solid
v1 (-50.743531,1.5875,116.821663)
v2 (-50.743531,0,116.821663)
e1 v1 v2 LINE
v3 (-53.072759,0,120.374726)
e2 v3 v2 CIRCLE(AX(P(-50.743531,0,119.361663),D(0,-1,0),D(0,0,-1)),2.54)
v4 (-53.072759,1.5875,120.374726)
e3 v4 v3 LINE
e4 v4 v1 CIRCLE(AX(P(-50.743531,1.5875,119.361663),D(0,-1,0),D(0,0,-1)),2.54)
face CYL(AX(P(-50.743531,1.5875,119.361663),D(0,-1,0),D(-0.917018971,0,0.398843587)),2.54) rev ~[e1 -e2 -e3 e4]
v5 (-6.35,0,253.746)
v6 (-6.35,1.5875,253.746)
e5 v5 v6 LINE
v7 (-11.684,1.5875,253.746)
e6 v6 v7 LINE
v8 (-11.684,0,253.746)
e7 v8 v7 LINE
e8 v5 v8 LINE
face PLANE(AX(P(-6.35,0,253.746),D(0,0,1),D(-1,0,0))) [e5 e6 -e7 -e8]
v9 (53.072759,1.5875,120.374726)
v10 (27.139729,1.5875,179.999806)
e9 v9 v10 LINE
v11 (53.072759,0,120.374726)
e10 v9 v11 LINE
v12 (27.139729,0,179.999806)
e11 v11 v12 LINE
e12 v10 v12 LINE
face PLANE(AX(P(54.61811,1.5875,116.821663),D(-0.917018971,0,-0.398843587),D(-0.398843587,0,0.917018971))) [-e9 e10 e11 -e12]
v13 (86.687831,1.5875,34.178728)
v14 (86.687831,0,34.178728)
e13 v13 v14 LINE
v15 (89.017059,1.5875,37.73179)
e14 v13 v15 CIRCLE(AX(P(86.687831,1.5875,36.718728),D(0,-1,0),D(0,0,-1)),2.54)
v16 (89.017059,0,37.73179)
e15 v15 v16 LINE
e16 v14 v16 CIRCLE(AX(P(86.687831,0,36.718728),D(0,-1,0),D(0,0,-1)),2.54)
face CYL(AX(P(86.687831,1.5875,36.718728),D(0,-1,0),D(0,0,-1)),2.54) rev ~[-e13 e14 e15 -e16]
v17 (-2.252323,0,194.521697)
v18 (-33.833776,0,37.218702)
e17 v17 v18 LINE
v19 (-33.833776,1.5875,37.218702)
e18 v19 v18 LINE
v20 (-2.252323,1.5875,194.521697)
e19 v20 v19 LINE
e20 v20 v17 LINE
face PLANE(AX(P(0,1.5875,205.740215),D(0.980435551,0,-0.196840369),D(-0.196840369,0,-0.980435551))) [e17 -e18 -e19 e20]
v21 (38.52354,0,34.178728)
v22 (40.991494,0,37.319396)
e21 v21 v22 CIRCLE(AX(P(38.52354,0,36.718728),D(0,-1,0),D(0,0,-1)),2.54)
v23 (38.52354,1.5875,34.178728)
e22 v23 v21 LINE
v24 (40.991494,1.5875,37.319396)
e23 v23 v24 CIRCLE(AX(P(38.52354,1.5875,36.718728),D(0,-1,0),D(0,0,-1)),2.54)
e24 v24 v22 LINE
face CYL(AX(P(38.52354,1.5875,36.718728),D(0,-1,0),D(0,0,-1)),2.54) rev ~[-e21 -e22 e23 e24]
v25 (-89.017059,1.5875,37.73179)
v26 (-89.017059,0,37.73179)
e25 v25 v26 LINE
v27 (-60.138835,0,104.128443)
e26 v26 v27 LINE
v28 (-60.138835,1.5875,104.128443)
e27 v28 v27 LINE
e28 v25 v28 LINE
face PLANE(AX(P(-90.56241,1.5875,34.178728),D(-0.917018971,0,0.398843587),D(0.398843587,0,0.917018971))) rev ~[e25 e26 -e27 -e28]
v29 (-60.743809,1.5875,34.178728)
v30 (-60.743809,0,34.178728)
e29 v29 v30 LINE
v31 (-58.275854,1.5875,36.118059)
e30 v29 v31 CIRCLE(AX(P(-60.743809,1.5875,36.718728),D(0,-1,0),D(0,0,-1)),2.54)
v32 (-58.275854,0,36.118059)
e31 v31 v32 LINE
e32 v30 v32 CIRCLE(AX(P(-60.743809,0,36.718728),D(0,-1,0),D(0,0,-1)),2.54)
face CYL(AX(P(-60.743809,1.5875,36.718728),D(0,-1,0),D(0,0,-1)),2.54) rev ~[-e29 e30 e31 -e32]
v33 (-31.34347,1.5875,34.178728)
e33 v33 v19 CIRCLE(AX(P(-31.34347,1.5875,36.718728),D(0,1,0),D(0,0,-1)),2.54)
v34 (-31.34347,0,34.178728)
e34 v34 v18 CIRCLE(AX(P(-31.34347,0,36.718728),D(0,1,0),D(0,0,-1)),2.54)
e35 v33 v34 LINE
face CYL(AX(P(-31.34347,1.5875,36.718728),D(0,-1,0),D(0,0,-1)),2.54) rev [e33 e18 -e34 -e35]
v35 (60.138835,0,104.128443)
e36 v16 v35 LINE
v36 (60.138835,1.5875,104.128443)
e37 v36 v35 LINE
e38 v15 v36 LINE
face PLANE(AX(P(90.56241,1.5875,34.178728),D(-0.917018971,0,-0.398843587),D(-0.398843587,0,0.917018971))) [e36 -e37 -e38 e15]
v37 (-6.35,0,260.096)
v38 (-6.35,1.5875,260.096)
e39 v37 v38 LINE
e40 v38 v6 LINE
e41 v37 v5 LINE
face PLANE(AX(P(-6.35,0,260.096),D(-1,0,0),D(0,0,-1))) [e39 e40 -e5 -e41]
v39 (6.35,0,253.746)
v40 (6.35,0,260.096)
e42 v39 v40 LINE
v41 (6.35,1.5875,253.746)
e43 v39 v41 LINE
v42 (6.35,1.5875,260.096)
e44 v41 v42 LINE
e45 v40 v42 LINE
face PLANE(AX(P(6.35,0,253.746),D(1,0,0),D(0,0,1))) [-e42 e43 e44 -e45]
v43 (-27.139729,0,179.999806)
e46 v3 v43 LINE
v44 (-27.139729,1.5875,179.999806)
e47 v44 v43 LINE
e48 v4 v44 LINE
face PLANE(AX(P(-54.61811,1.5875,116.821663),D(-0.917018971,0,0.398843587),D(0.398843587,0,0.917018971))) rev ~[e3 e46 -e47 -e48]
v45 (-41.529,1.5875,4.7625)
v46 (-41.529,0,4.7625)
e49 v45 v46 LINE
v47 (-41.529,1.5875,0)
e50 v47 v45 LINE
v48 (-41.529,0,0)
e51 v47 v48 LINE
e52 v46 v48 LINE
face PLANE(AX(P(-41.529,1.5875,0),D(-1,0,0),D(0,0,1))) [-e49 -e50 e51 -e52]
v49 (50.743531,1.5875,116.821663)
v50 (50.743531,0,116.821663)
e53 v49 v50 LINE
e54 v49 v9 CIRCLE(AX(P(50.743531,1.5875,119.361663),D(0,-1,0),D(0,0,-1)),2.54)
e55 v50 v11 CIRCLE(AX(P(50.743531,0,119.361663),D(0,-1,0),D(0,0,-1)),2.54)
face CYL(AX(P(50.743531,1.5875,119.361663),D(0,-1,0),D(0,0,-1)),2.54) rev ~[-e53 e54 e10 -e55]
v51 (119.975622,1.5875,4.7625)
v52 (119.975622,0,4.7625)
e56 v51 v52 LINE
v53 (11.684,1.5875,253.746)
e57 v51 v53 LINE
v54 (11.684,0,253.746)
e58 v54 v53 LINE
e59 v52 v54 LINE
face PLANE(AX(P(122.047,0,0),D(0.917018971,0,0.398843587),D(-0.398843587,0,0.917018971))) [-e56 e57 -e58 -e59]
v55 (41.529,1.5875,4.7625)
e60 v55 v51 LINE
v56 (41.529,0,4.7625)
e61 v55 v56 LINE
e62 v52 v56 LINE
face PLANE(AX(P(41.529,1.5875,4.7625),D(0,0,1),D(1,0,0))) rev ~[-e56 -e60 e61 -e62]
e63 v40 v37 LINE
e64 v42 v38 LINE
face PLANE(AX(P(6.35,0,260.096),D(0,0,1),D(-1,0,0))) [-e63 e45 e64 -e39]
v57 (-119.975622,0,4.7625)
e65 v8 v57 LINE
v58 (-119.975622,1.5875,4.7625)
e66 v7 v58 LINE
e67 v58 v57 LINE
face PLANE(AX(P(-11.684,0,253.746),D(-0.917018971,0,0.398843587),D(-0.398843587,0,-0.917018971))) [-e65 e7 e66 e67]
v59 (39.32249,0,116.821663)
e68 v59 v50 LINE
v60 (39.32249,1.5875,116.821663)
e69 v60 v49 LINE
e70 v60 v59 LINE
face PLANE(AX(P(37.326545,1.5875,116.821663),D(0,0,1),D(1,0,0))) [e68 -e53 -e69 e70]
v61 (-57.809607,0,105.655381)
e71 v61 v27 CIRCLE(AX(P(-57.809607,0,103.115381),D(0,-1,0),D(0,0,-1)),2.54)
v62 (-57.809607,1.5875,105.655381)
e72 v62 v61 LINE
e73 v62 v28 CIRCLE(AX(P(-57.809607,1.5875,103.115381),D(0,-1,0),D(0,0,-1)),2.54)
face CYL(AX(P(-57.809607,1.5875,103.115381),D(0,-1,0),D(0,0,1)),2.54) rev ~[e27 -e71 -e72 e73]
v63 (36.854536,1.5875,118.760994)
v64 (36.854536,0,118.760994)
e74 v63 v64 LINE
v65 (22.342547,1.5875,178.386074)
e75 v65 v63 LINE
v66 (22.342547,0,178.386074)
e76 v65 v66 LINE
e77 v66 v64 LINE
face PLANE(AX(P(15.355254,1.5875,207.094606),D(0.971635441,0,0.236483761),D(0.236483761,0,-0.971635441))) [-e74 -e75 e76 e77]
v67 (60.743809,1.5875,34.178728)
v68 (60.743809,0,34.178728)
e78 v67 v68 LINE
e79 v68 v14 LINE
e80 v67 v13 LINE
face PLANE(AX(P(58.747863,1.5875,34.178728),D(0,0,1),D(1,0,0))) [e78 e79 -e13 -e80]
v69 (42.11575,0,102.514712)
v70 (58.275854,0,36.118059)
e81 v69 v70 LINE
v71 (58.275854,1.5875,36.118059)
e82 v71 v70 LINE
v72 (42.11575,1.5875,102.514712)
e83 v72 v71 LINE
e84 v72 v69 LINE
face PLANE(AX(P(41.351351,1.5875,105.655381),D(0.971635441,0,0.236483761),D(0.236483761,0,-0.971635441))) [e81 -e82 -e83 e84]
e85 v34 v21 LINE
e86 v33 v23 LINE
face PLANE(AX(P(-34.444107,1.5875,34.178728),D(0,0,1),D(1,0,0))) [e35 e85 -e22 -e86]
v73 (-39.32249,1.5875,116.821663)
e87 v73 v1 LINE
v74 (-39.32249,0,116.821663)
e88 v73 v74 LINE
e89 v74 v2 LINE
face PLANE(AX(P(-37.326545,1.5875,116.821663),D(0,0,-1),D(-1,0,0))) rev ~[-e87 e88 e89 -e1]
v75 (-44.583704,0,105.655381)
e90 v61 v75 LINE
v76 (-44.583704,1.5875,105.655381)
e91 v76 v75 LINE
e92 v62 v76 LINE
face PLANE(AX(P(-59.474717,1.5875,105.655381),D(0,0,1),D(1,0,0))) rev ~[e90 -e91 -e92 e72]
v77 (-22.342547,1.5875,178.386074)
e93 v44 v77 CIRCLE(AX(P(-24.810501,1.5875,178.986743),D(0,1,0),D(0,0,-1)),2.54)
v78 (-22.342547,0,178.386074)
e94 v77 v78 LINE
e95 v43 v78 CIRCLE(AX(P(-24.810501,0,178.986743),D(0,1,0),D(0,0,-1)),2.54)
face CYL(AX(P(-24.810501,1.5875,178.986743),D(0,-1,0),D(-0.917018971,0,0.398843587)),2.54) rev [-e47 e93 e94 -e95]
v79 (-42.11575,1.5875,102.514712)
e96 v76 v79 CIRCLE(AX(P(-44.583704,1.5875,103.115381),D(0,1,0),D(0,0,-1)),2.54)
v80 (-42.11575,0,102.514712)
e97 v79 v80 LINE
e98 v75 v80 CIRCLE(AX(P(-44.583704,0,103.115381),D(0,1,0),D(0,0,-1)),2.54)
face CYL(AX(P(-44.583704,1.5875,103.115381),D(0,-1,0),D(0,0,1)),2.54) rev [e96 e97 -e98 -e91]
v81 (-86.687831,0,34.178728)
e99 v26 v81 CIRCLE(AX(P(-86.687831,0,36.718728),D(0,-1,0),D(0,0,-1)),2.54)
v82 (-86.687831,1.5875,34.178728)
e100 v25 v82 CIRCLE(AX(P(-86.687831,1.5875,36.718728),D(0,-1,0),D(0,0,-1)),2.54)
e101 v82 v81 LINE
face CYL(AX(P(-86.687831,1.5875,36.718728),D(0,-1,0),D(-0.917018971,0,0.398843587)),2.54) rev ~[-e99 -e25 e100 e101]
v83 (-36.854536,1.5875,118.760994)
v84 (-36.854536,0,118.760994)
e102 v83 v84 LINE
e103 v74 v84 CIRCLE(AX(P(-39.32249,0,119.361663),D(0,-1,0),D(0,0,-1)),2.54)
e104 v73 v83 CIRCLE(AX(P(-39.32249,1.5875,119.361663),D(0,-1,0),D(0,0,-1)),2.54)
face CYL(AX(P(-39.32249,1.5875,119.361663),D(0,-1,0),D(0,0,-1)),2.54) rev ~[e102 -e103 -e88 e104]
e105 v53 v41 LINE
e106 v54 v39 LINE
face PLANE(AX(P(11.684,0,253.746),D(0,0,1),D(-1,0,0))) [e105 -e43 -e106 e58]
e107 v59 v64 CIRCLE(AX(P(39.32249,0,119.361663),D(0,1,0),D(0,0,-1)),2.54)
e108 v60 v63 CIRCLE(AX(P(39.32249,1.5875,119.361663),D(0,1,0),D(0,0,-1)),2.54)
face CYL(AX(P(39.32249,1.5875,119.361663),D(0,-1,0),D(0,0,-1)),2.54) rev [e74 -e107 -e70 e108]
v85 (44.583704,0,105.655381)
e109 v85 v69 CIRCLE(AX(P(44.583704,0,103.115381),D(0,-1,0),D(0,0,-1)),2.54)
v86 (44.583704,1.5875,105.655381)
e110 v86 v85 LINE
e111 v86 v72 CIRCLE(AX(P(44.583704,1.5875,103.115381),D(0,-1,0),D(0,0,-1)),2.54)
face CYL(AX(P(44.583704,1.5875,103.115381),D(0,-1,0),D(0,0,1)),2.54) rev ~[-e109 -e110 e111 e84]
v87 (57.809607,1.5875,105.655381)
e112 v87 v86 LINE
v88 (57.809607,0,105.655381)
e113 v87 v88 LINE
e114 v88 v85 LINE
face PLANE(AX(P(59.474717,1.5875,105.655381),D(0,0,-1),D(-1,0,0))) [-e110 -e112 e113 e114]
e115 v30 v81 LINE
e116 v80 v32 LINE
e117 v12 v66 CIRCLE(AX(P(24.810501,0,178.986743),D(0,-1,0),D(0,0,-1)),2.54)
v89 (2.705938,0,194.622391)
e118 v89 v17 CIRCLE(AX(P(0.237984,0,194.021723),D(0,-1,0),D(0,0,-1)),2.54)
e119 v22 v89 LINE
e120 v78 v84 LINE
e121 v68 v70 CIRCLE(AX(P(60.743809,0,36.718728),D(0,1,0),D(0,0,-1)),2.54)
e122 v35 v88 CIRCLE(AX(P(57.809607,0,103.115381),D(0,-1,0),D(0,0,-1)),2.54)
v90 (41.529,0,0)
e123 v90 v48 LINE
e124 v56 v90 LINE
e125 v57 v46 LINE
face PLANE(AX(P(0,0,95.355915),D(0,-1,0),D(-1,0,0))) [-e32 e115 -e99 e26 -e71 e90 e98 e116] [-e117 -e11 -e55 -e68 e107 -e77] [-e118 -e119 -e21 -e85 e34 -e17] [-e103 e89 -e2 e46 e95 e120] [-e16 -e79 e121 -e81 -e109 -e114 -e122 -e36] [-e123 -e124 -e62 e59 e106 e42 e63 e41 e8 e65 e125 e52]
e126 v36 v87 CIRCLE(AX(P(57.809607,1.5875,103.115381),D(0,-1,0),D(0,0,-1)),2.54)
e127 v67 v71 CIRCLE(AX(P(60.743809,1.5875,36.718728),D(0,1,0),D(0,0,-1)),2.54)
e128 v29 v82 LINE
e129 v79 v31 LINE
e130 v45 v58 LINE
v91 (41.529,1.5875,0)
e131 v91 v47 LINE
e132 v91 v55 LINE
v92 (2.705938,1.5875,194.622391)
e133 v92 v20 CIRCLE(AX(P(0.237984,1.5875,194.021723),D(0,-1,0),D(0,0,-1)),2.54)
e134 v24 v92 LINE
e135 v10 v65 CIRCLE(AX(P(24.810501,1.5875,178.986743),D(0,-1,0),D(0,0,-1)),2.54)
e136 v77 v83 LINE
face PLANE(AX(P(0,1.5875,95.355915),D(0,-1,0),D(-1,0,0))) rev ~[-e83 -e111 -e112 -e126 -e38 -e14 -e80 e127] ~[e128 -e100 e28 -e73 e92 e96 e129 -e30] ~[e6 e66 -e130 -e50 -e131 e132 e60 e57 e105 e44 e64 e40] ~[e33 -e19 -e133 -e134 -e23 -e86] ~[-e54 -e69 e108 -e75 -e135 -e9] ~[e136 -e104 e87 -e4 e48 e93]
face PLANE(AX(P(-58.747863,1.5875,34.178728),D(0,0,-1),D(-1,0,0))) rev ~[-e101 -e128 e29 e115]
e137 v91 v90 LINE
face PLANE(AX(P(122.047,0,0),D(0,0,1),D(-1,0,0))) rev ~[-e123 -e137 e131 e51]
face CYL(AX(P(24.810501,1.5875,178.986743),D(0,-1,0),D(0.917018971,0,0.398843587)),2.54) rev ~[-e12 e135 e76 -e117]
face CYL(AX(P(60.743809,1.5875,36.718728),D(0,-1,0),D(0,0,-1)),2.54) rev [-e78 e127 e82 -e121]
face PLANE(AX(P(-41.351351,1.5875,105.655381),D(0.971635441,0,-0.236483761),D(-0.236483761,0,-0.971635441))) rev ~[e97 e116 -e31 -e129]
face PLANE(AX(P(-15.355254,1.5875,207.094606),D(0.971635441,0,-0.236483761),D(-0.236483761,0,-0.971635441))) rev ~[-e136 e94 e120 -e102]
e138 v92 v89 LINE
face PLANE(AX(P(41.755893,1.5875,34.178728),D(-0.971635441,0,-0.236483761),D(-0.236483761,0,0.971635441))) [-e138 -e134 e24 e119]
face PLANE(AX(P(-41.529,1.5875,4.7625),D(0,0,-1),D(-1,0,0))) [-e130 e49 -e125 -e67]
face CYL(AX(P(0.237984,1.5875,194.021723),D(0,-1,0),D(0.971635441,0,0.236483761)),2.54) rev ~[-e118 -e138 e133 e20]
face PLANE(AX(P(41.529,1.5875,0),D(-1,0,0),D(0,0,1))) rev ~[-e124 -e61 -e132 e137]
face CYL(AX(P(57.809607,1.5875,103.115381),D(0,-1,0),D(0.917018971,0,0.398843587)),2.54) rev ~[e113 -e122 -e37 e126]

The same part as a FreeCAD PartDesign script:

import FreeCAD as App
import Part
import Sketcher

V = App.Vector
Q = App.Units.Quantity


def edges_at(feature, points):
    """Names of the edges that pass closest to the given points."""
    edges = feature.Shape.Edges
    near = lambda p: min(range(len(edges)), key=lambda i: edges[i].distToShape(Part.Vertex(*p))[0])
    return sorted({f"Edge{near(p) + 1}" for p in points})

doc = App.newDocument("Part")
body = doc.addObject("PartDesign::Body", "Body")

sketch1 = body.newObject("Sketcher::SketchObject", "Sketch")
sketch1.AttachmentSupport = (doc.getObject("XZ_Plane"), [""])
sketch1.MapMode = "FlatFace"
sketch1.addGeometry([
    Part.LineSegment(V(122, 0, 0), V(-122, 0, 0)),
    Part.LineSegment(V(-122, 0, 0), V(-12, 254, 0)),
    Part.LineSegment(V(-12, 254, 0), V(-6, 254, 0)),
    Part.LineSegment(V(-6, 254, 0), V(-6, 260, 0)),
    Part.LineSegment(V(-6, 260, 0), V(6, 260, 0)),
    Part.LineSegment(V(6, 260, 0), V(6, 254, 0)),
    Part.LineSegment(V(6, 254, 0), V(12, 254, 0)),
    Part.LineSegment(V(12, 254, 0), V(122, 0, 0)),
], False)
sketch1.addConstraint([
    Sketcher.Constraint("Coincident", 0, 2, 1, 1),
    Sketcher.Constraint("Coincident", 1, 2, 2, 1),
    Sketcher.Constraint("Coincident", 2, 2, 3, 1),
    Sketcher.Constraint("Coincident", 3, 2, 4, 1),
    Sketcher.Constraint("Coincident", 4, 2, 5, 1),
    Sketcher.Constraint("Coincident", 5, 2, 6, 1),
    Sketcher.Constraint("Coincident", 6, 2, 7, 1),
    Sketcher.Constraint("Coincident", 7, 2, 0, 1),
    Sketcher.Constraint("Horizontal", 0),
    Sketcher.Constraint("Horizontal", 2),
    Sketcher.Constraint("Vertical", 3),
    Sketcher.Constraint("Horizontal", 4),
    Sketcher.Constraint("Vertical", 5),
    Sketcher.Constraint("Horizontal", 6),
    Sketcher.Constraint("Symmetric", 0, 2, 7, 2, -1, 1),
    Sketcher.Constraint("Symmetric", 2, 2, 5, 2, -2),
    Sketcher.Constraint("Equal", 2, 6),
    Sketcher.Constraint("DistanceX", 4, 1, 4, 2, Q("0.5 in")),
    Sketcher.Constraint("DistanceX", 0, 2, 0, 1, Q("9.61 in")),
    Sketcher.Constraint("DistanceX", 2, 1, 2, 2, Q("0.21 in")),
    Sketcher.Constraint("DistanceY", 3, 1, 3, 2, Q("0.25 in")),
    Sketcher.Constraint("DistanceY", -1, 1, 1, 2, Q("9.99 in")),
])
pad1 = body.newObject("PartDesign::Pad", "Pad")
pad1.Profile = sketch1
pad1.Length = Q("0.0625 in")
pad1.Reversed = True

sketch2 = body.newObject("Sketcher::SketchObject", "Sketch001")
sketch2.AttachmentSupport = (doc.getObject("XZ_Plane"), [""])
sketch2.MapMode = "FlatFace"
sketch2.AttachmentOffset = App.Placement(V(0, 0, -0.0625 * 25.4), App.Rotation())
sketch2.addGeometry([
    Part.LineSegment(V(41.5, 0, 0), V(41.5, 4.8, 0)),
    Part.LineSegment(V(41.5, 4.8, 0), V(120, 4.8, 0)),
    Part.LineSegment(V(120, 4.8, 0), V(122, 0, 0)),
    Part.LineSegment(V(122, 0, 0), V(41.5, 0, 0)),
    Part.LineSegment(V(-122, 0, 0), V(-120, 4.8, 0)),
    Part.LineSegment(V(-120, 4.8, 0), V(-41.5, 4.8, 0)),
    Part.LineSegment(V(-41.5, 4.8, 0), V(-41.5, 0, 0)),
    Part.LineSegment(V(-41.5, 0, 0), V(-122, 0, 0)),
], False)
sketch2.addConstraint([
    Sketcher.Constraint("Coincident", 0, 2, 1, 1),
    Sketcher.Constraint("Coincident", 1, 2, 2, 1),
    Sketcher.Constraint("Coincident", 2, 2, 3, 1),
    Sketcher.Constraint("Coincident", 3, 2, 0, 1),
    Sketcher.Constraint("Coincident", 4, 2, 5, 1),
    Sketcher.Constraint("Coincident", 5, 2, 6, 1),
    Sketcher.Constraint("Coincident", 6, 2, 7, 1),
    Sketcher.Constraint("Coincident", 7, 2, 4, 1),
    Sketcher.Constraint("Vertical", 0),
    Sketcher.Constraint("Horizontal", 1),
    Sketcher.Constraint("Horizontal", 3),
    Sketcher.Constraint("Horizontal", 5),
    Sketcher.Constraint("Vertical", 6),
    Sketcher.Constraint("Horizontal", 7),
    Sketcher.Constraint("Symmetric", 3, 2, 6, 2, -1, 1),
    Sketcher.Constraint("Symmetric", 1, 2, 4, 2, -2),
    Sketcher.Constraint("Symmetric", 2, 2, 7, 2, -2),
    Sketcher.Constraint("DistanceX", 3, 2, 3, 1, Q("3.17 in")),
    Sketcher.Constraint("DistanceY", 0, 1, 0, 2, Q("0.1875 in")),
    Sketcher.Constraint("DistanceX", 5, 2, 0, 2, Q("3.27 in")),
    Sketcher.Constraint("Distance", 2, 5.193459),
])
pocket1 = body.newObject("PartDesign::Pocket", "Pocket")
pocket1.Profile = sketch2
pocket1.Type = "ThroughAll"
pocket1.Reversed = True

sketch3 = body.newObject("Sketcher::SketchObject", "Sketch002")
sketch3.AttachmentSupport = (doc.getObject("XZ_Plane"), [""])
sketch3.MapMode = "FlatFace"
sketch3.AttachmentOffset = App.Placement(V(0, 0, -0.0625 * 25.4), App.Rotation())
sketch3.addGeometry([
    Part.LineSegment(V(54.61811, 116.821663, 0), V(37.326545, 116.821663, 0)),
    Part.LineSegment(V(37.326545, 116.821663, 0), V(15.355254, 207.094606, 0)),
    Part.LineSegment(V(15.355254, 207.094606, 0), V(54.61811, 116.821663, 0)),
    Part.LineSegment(V(41.755893, 34.178728, 0), V(-34.444107, 34.178728, 0)),
    Part.LineSegment(V(-34.444107, 34.178728, 0), V(0, 205.740215, 0)),
    Part.LineSegment(V(0, 205.740215, 0), V(41.755893, 34.178728, 0)),
    Part.LineSegment(V(90.56241, 34.178728, 0), V(58.747863, 34.178728, 0)),
    Part.LineSegment(V(58.747863, 34.178728, 0), V(41.351351, 105.655381, 0)),
    Part.LineSegment(V(41.351351, 105.655381, 0), V(59.474717, 105.655381, 0)),
    Part.LineSegment(V(59.474717, 105.655381, 0), V(90.56241, 34.178728, 0)),
    Part.LineSegment(V(-15.355254, 207.094606, 0), V(-37.326545, 116.821663, 0)),
    Part.LineSegment(V(-37.326545, 116.821663, 0), V(-54.61811, 116.821663, 0)),
    Part.LineSegment(V(-54.61811, 116.821663, 0), V(-15.355254, 207.094606, 0)),
    Part.LineSegment(V(-41.351351, 105.655381, 0), V(-58.747863, 34.178728, 0)),
    Part.LineSegment(V(-58.747863, 34.178728, 0), V(-90.56241, 34.178728, 0)),
    Part.LineSegment(V(-90.56241, 34.178728, 0), V(-59.474717, 105.655381, 0)),
    Part.LineSegment(V(-59.474717, 105.655381, 0), V(-41.351351, 105.655381, 0)),
], False)
sketch3.addConstraint([
    Sketcher.Constraint("Coincident", 0, 2, 1, 1),
    Sketcher.Constraint("Coincident", 1, 2, 2, 1),
    Sketcher.Constraint("Coincident", 2, 2, 0, 1),
    Sketcher.Constraint("Coincident", 3, 2, 4, 1),
    Sketcher.Constraint("Coincident", 4, 2, 5, 1),
    Sketcher.Constraint("Coincident", 5, 2, 3, 1),
    Sketcher.Constraint("Coincident", 6, 2, 7, 1),
    Sketcher.Constraint("Coincident", 7, 2, 8, 1),
    Sketcher.Constraint("Coincident", 8, 2, 9, 1),
    Sketcher.Constraint("Coincident", 9, 2, 6, 1),
    Sketcher.Constraint("Coincident", 10, 2, 11, 1),
    Sketcher.Constraint("Coincident", 11, 2, 12, 1),
    Sketcher.Constraint("Coincident", 12, 2, 10, 1),
    Sketcher.Constraint("Coincident", 13, 2, 14, 1),
    Sketcher.Constraint("Coincident", 14, 2, 15, 1),
    Sketcher.Constraint("Coincident", 15, 2, 16, 1),
    Sketcher.Constraint("Coincident", 16, 2, 13, 1),
    Sketcher.Constraint("Horizontal", 0),
    Sketcher.Constraint("Horizontal", 3),
    Sketcher.Constraint("Horizontal", 6),
    Sketcher.Constraint("Horizontal", 8),
    Sketcher.Constraint("Horizontal", 11),
    Sketcher.Constraint("Horizontal", 14),
    Sketcher.Constraint("Horizontal", 16),
    Sketcher.Constraint("Symmetric", 0, 2, 10, 2, -2),
    Sketcher.Constraint("Symmetric", 1, 2, 12, 2, -2),
    Sketcher.Constraint("Symmetric", 6, 2, 13, 2, -2),
    Sketcher.Constraint("Symmetric", 8, 2, 15, 2, -2),
    Sketcher.Constraint("PointOnObject", 4, 2, -2),
    Sketcher.Constraint("Parallel", 1, 5),
    Sketcher.Constraint("Parallel", 5, 7),
    Sketcher.Constraint("Parallel", 2, 9),
    Sketcher.Constraint("Parallel", 10, 13),
    Sketcher.Constraint("Parallel", 12, 15),
    Sketcher.Constraint("Horizontal", 5, 2, 6, 2),
    Sketcher.Constraint("Equal", 0, 11),
    Sketcher.Constraint("DistanceX", 3, 2, 3, 1, Q("3 in")),
    Sketcher.Constraint("DistanceX", 2, 2, 9, 2, 35.9443),
    Sketcher.Constraint("DistanceX", 12, 2, 0, 2, 52.681798),
    Sketcher.Constraint("Distance", 2, 98.44174),
    Sketcher.Constraint("Distance", 7, 73.563242),
    Sketcher.Constraint("DistanceX", 0, 2, 0, 1, 17.291566),
    Sketcher.Constraint("DistanceX", 6, 2, 6, 1, 31.814547),
    Sketcher.Constraint("DistanceX", 8, 1, 8, 2, 18.123366),
    Sketcher.Constraint("DistanceY", -1, 1, 7, 2, 105.655381),
    Sketcher.Constraint("DistanceX", 3, 2, 0, 2, 71.770651),
    Sketcher.Constraint("DistanceY", 3, 2, 1, 2, 172.915879),
])
pocket2 = body.newObject("PartDesign::Pocket", "Pocket001")
pocket2.Profile = sketch3
pocket2.Length = Q("0.0625 in")
pocket2.Reversed = True
doc.recompute()

fillet = body.newObject("PartDesign::Fillet", "Fillet")
fillet.Base = (pocket2, edges_at(pocket2, [
    (-15.355, 0.794, 207.095),
    (-54.618, 0.794, 116.822),
    (-37.327, 0.794, 116.822),
    (37.327, 0.794, 116.822),
    (15.355, 0.794, 207.095),
    (54.618, 0.794, 116.822),
    (90.562, 0.794, 34.179),
    (58.748, 0.794, 34.179),
    (41.351, 0.794, 105.655),
    (59.475, 0.794, 105.655),
    (-41.351, 0.794, 105.655),
    (-59.475, 0.794, 105.655),
    (-90.562, 0.794, 34.179),
    (-58.748, 0.794, 34.179),
    (-34.444, 0.794, 34.179),
    (0, 0.794, 205.74),
    (41.756, 0.794, 34.179),
]))
fillet.Radius = Q("0.1 in")

doc.recompute()
